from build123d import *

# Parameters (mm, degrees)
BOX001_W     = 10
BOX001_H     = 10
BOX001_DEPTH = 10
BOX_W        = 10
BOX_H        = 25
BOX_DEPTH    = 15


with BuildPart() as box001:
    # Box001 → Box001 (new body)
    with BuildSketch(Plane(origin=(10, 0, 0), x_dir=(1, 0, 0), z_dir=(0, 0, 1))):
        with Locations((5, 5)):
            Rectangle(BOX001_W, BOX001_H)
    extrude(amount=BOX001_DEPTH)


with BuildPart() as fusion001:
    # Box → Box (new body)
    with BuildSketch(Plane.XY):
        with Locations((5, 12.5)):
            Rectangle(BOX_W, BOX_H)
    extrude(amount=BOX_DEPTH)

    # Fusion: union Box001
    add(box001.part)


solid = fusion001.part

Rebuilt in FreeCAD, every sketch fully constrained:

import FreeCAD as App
import Part
import Sketcher

V = App.Vector
Q = App.Units.Quantity


def add_polygon(sketch, points):
    """Adds a closed chain of lines whose ends are joined by coincident constraints."""
    first, n = sketch.GeometryCount, len(points)
    for a, b in zip(points, points[1:] + points[:1]):
        sketch.addGeometry(Part.LineSegment(App.Vector(*a, 0), App.Vector(*b, 0)), False)
    for i in range(n):
        sketch.addConstraint(Sketcher.Constraint("Coincident", first + i, 2, first + (i + 1) % n, 1))

doc = App.newDocument("Part")
params = doc.addObject("Spreadsheet::Sheet", "Params")
for row, (alias, value) in enumerate([
    ("sketch1_width", "10 mm"),
    ("pad1_length", "10 mm"),
    ("sketch2_width", "10 mm"),
    ("sketch2_height", "25 mm"),
    ("pad2_length", "15 mm"),
], start=1):
    params.set(f"A{row}", alias)
    params.set(f"B{row}", "=" + value)
    params.setAlias(f"B{row}", alias)

body = doc.addObject("PartDesign::Body", "Body")

# Sketch on XY plane
sketch1 = doc.addObject("Sketcher::SketchObject", "Sketch")
body.addObject(sketch1)
sketch1.AttachmentSupport = (doc.XY_Plane, [""])
sketch1.MapMode = "FlatFace"
add_polygon(sketch1, [(10, 10), (10, 0), (20, 0), (20, 10)])  # lines 0-3
sketch1.addConstraint([
    Sketcher.Constraint("Vertical", 0),
    Sketcher.Constraint("Horizontal", 1),
    Sketcher.Constraint("Vertical", 2),
    Sketcher.Constraint("Horizontal", 3),
    Sketcher.Constraint("PointOnObject", 0, 2, -1),
    Sketcher.Constraint("Equal", 3, 0),
    Sketcher.Constraint("DistanceX", 1, 1, 1, 2, Q("10 mm")),
    Sketcher.Constraint("DistanceX", -1, 1, 0, 2, Q("10 mm")),
])
sketch1.setExpression("Constraints[10]", "Params.sketch1_width")
pad1 = doc.addObject("PartDesign::Pad", "Pad")
body.addObject(pad1)
pad1.Profile = sketch1
pad1.setExpression("Length", "Params.pad1_length")
body2 = doc.addObject("PartDesign::Body", "Body001")

# Sketch on XY plane
sketch2 = doc.addObject("Sketcher::SketchObject", "Sketch001")
body2.addObject(sketch2)
sketch2.AttachmentSupport = (doc.getObject("XY_Plane001"), [""])
sketch2.MapMode = "FlatFace"
add_polygon(sketch2, [(0, 25), (0, 0), (10, 0), (10, 25)])  # lines 0-3
sketch2.addConstraint([
    Sketcher.Constraint("Vertical", 0),
    Sketcher.Constraint("Horizontal", 1),
    Sketcher.Constraint("Vertical", 2),
    Sketcher.Constraint("Horizontal", 3),
    Sketcher.Constraint("Coincident", 0, 2, -1, 1),
    Sketcher.Constraint("DistanceX", 1, 1, 1, 2, Q("10 mm")),
    Sketcher.Constraint("DistanceY", 0, 2, 0, 1, Q("25 mm")),
])
sketch2.setExpression("Constraints[9]", "Params.sketch2_width")
sketch2.setExpression("Constraints[10]", "Params.sketch2_height")
pad2 = doc.addObject("PartDesign::Pad", "Pad001")
body2.addObject(pad2)
pad2.Profile = sketch2
pad2.setExpression("Length", "Params.pad2_length")
doc.recompute()

boolean = doc.addObject("PartDesign::Boolean", "Boolean")
body2.addObject(boolean)
boolean.Type = "Fuse"
boolean.addObjects([body])

doc.recompute()
